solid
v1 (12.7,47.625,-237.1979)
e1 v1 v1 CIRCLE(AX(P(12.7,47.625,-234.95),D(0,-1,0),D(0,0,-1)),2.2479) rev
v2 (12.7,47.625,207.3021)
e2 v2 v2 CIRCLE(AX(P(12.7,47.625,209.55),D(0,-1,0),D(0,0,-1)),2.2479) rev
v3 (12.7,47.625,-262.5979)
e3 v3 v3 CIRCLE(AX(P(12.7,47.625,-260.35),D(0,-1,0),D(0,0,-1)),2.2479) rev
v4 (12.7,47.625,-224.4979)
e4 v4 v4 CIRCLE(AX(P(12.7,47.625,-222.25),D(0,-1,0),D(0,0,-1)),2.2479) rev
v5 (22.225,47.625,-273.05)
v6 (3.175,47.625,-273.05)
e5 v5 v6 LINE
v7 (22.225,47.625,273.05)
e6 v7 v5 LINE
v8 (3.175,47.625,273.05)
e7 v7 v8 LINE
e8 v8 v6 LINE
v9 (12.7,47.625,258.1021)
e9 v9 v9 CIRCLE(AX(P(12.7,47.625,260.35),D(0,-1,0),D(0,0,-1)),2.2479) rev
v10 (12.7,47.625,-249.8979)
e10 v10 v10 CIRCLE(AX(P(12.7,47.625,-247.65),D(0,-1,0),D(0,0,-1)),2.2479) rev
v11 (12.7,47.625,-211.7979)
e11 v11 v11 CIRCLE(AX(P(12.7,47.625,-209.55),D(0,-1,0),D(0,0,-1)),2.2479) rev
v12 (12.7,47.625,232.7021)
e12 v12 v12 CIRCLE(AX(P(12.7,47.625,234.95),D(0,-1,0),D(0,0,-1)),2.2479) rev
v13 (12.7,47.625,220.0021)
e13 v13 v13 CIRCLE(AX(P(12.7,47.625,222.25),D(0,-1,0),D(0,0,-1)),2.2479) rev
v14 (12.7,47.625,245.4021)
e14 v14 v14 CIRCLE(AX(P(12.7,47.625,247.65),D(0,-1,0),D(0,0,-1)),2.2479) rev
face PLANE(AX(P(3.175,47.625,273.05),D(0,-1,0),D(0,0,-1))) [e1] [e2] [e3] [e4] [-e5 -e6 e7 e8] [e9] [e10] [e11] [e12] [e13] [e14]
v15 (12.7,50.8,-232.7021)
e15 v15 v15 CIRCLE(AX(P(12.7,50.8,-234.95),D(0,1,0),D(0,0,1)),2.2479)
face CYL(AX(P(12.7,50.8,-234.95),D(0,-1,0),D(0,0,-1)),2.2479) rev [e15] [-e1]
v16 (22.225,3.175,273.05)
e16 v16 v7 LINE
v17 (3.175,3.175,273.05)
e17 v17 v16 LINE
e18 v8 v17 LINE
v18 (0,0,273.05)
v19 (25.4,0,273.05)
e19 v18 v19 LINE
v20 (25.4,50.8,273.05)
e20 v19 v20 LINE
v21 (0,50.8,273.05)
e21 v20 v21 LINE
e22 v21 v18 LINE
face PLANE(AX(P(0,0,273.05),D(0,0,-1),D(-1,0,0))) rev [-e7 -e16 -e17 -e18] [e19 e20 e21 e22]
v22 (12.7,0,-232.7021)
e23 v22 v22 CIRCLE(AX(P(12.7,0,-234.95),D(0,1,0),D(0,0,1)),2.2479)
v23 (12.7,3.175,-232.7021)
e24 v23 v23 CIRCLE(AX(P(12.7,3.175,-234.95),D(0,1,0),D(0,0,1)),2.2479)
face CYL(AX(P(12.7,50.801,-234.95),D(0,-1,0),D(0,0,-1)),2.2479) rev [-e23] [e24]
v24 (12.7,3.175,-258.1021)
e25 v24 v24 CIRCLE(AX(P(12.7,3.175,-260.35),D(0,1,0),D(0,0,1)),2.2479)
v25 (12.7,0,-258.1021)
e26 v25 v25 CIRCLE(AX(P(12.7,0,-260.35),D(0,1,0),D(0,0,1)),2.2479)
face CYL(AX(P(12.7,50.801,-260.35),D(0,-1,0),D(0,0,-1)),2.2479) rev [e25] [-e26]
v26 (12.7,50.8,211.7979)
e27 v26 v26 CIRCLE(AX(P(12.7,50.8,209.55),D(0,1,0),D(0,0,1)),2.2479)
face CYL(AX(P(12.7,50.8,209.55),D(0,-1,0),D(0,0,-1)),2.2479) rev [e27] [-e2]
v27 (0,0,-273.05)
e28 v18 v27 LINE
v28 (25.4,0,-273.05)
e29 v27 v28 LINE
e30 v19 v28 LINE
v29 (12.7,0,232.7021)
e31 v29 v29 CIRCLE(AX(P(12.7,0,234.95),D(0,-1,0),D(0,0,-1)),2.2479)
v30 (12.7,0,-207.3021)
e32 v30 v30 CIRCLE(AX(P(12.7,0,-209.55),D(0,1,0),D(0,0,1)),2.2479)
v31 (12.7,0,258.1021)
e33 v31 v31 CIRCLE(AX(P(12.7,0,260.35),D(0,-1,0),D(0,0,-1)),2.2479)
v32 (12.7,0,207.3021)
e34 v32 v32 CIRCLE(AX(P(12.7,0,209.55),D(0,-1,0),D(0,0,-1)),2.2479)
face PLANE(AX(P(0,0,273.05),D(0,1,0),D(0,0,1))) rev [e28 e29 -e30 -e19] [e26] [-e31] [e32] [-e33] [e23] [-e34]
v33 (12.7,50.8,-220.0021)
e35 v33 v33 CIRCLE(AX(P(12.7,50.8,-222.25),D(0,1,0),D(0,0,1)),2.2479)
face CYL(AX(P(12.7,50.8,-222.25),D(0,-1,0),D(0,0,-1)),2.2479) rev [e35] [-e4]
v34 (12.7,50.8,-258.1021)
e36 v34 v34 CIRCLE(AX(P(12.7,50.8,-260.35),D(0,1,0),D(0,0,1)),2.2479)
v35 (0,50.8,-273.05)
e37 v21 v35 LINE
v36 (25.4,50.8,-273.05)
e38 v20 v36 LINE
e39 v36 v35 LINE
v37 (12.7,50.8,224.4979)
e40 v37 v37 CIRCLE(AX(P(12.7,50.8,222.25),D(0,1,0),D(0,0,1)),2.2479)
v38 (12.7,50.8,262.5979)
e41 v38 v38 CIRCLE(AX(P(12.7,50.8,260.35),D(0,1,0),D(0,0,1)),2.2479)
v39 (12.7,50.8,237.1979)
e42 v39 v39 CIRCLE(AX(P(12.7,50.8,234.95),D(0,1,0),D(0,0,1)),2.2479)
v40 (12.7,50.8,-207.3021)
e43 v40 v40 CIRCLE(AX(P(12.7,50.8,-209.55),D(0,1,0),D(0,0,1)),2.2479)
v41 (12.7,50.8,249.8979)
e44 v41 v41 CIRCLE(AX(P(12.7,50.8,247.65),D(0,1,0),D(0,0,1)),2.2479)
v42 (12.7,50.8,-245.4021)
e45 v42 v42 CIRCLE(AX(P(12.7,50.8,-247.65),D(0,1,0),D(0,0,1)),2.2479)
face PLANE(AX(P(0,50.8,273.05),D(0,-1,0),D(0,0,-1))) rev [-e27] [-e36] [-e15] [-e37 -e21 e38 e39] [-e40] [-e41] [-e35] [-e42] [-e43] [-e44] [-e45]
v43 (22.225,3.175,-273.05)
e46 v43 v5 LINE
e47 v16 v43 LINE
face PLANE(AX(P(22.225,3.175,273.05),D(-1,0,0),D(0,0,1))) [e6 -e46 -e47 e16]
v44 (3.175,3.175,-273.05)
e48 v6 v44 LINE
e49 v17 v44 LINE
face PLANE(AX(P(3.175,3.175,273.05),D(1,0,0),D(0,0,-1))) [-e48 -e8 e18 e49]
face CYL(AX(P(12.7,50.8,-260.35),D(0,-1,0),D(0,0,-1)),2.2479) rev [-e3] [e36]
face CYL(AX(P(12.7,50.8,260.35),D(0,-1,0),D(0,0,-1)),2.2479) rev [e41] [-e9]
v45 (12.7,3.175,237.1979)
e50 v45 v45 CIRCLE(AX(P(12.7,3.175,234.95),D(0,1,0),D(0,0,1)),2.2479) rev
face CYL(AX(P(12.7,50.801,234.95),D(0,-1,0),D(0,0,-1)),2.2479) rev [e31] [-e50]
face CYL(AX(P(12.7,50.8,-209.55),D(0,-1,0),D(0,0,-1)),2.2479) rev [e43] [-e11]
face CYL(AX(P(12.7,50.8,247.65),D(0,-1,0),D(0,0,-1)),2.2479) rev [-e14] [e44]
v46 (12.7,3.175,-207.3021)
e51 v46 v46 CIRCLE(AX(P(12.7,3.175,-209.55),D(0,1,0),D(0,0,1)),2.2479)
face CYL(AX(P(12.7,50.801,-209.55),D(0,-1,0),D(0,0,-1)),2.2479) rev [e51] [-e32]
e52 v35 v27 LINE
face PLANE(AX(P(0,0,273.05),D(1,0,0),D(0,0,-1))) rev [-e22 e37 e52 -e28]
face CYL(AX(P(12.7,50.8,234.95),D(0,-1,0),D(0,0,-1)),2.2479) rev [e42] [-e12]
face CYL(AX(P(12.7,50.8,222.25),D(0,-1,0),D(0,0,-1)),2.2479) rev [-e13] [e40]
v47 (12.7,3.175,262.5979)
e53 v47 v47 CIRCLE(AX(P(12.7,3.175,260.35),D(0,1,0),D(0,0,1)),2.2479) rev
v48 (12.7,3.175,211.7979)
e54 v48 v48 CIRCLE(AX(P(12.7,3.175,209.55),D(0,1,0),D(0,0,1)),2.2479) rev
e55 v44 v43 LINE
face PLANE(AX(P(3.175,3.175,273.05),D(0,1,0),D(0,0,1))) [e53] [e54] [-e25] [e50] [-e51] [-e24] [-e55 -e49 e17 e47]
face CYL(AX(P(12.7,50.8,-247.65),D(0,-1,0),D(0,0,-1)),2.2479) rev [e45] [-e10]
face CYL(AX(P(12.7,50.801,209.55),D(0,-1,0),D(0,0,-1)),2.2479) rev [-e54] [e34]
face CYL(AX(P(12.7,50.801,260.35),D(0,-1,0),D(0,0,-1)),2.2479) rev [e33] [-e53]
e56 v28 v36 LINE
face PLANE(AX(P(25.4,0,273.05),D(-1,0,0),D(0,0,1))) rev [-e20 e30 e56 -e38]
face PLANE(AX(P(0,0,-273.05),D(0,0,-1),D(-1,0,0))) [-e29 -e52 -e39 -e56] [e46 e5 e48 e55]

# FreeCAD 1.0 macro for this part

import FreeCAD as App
import Part
import Sketcher

V = App.Vector
Q = App.Units.Quantity


def add_polygon(sketch, points):
    """Adds a closed chain of lines whose ends are joined by coincident constraints."""
    first, n = sketch.GeometryCount, len(points)
    for a, b in zip(points, points[1:] + points[:1]):
        sketch.addGeometry(Part.LineSegment(App.Vector(*a, 0), App.Vector(*b, 0)), False)
    for i in range(n):
        sketch.addConstraint(Sketcher.Constraint("Coincident", first + i, 2, first + (i + 1) % n, 1))

doc = App.newDocument("Part")
body = doc.addObject("PartDesign::Body", "Body")

# Sketch on XY plane
sketch1 = doc.addObject("Sketcher::SketchObject", "Sketch")
body.addObject(sketch1)
sketch1.AttachmentSupport = (doc.XY_Plane, [""])
sketch1.MapMode = "FlatFace"
add_polygon(sketch1, [(0, 50.8), (0, 0), (25.4, 0), (25.4, 50.8)])  # lines 0-3
add_polygon(sketch1, [(22.225, 3.175), (3.175, 3.175), (3.175, 47.625), (22.225, 47.625)])  # lines 4-7
sketch1.addConstraint(Sketcher.Constraint("Vertical", 0))
sketch1.addConstraint(Sketcher.Constraint("Horizontal", 1))
sketch1.addConstraint(Sketcher.Constraint("Vertical", 2))
sketch1.addConstraint(Sketcher.Constraint("Horizontal", 3))
sketch1.addConstraint(Sketcher.Constraint("Horizontal", 4))
sketch1.addConstraint(Sketcher.Constraint("Vertical", 5))
sketch1.addConstraint(Sketcher.Constraint("Horizontal", 6))
sketch1.addConstraint(Sketcher.Constraint("Vertical", 7))
sketch1.addConstraint(Sketcher.Constraint("Coincident", 0, 2, -1, 1))
sketch1.addConstraint(Sketcher.Constraint("DistanceX", 1, 1, 1, 2, Q("1 in")))
sketch1.addConstraint(Sketcher.Constraint("DistanceY", 0, 2, 0, 1, Q("2 in")))
sketch1.addConstraint(Sketcher.Constraint("DistanceX", 4, 2, 4, 1, Q("0.75 in")))
sketch1.addConstraint(Sketcher.Constraint("DistanceY", 5, 1, 5, 2, Q("1.75 in")))
sketch1.addConstraint(Sketcher.Constraint("DistanceX", -1, 1, 4, 2, Q("0.125 in")))
sketch1.addConstraint(Sketcher.Constraint("DistanceY", -1, 1, 4, 2, Q("0.125 in")))
pad1 = doc.addObject("PartDesign::Pad", "Pad")
body.addObject(pad1)
pad1.Profile = sketch1
pad1.Length = Q("21.5 in")
pad1.Midplane = True

# Sketch on XZ plane
sketch2 = doc.addObject("Sketcher::SketchObject", "Sketch001")
body.addObject(sketch2)
sketch2.AttachmentSupport = (doc.XZ_Plane, [""])
sketch2.MapMode = "FlatFace"
sketch2.addGeometry(Part.Circle(V(12.7, -260.35, 0), V(0, 0, 1), 2.2479), False)
sketch2.addGeometry(Part.Circle(V(12.7, -234.95, 0), V(0, 0, 1), 2.2479), False)
sketch2.addGeometry(Part.Circle(V(12.7, -209.55, 0), V(0, 0, 1), 2.2479), False)
sketch2.addConstraint(Sketcher.Constraint("Equal", 0, 1))
sketch2.addConstraint(Sketcher.Constraint("Equal", 1, 2))
sketch2.addConstraint(Sketcher.Constraint("Vertical", 0, 3, 1, 3))
sketch2.addConstraint(Sketcher.Constraint("Vertical", 1, 3, 2, 3))
sketch2.addConstraint(Sketcher.Constraint("Diameter", 0, Q("0.177 in")))
sketch2.addConstraint(Sketcher.Constraint("DistanceY", 0, 3, 1, 3, Q("1 in")))
sketch2.addConstraint(Sketcher.Constraint("DistanceY", 1, 3, 2, 3, Q("1 in")))
sketch2.addConstraint(Sketcher.Constraint("DistanceX", -1, 1, 0, 3, Q("0.5 in")))
sketch2.addConstraint(Sketcher.Constraint("DistanceY", 0, 3, -1, 1, Q("10.25 in")))
pocket1 = doc.addObject("PartDesign::Pocket", "Pocket")
body.addObject(pocket1)
pocket1.Profile = sketch2
pocket1.Length = Q("0.125 in")

# Sketch on XZ plane
sketch3 = doc.addObject("Sketcher::SketchObject", "Sketch002")
body.addObject(sketch3)
sketch3.AttachmentSupport = (doc.XZ_Plane, [""])
sketch3.MapMode = "FlatFace"
sketch3.AttachmentOffset = App.Placement(V(0, 0, -0.125 * 25.4), App.Rotation())
sketch3.addGeometry(Part.Circle(V(12.7, -260.35, 0), V(0, 0, 1), 2.2479), False)
sketch3.addGeometry(Part.Circle(V(12.7, -247.65, 0), V(0, 0, 1), 2.2479), False)
sketch3.addGeometry(Part.Circle(V(12.7, -234.95, 0), V(0, 0, 1), 2.2479), False)
sketch3.addGeometry(Part.Circle(V(12.7, -222.25, 0), V(0, 0, 1), 2.2479), False)
sketch3.addGeometry(Part.Circle(V(12.7, -209.55, 0), V(0, 0, 1), 2.2479), False)
sketch3.addConstraint(Sketcher.Constraint("Equal", 0, 1))
sketch3.addConstraint(Sketcher.Constraint("Equal", 1, 2))
sketch3.addConstraint(Sketcher.Constraint("Equal", 2, 3))
sketch3.addConstraint(Sketcher.Constraint("Equal", 3, 4))
sketch3.addConstraint(Sketcher.Constraint("Vertical", 0, 3, 1, 3))
sketch3.addConstraint(Sketcher.Constraint("Vertical", 1, 3, 2, 3))
sketch3.addConstraint(Sketcher.Constraint("Vertical", 2, 3, 3, 3))
sketch3.addConstraint(Sketcher.Constraint("Vertical", 3, 3, 4, 3))
sketch3.addConstraint(Sketcher.Constraint("Diameter", 0, Q("0.177 in")))
sketch3.addConstraint(Sketcher.Constraint("DistanceY", 0, 3, 2, 3, Q("1 in")))
sketch3.addConstraint(Sketcher.Constraint("DistanceY", 1, 3, 3, 3, Q("1 in")))
sketch3.addConstraint(Sketcher.Constraint("DistanceY", 2, 3, 4, 3, Q("1 in")))
sketch3.addConstraint(Sketcher.Constraint("DistanceX", -1, 1, 0, 3, Q("0.5 in")))
sketch3.addConstraint(Sketcher.Constraint("DistanceY", 0, 3, 1, 3, Q("0.5 in")))
sketch3.addConstraint(Sketcher.Constraint("DistanceY", 0, 3, -1, 1, Q("10.25 in")))
pocket2 = doc.addObject("PartDesign::Pocket", "Pocket001")
body.addObject(pocket2)
pocket2.Profile = sketch3
pocket2.Type = "ThroughAll"
doc.recompute()

mirrored = doc.addObject("PartDesign::Mirrored", "Mirrored")
body.addObject(mirrored)
mirrored.Originals = [pocket1, pocket2]
mirrored.MirrorPlane = (doc.XY_Plane, [""])
body.Tip = mirrored

doc.recompute()
